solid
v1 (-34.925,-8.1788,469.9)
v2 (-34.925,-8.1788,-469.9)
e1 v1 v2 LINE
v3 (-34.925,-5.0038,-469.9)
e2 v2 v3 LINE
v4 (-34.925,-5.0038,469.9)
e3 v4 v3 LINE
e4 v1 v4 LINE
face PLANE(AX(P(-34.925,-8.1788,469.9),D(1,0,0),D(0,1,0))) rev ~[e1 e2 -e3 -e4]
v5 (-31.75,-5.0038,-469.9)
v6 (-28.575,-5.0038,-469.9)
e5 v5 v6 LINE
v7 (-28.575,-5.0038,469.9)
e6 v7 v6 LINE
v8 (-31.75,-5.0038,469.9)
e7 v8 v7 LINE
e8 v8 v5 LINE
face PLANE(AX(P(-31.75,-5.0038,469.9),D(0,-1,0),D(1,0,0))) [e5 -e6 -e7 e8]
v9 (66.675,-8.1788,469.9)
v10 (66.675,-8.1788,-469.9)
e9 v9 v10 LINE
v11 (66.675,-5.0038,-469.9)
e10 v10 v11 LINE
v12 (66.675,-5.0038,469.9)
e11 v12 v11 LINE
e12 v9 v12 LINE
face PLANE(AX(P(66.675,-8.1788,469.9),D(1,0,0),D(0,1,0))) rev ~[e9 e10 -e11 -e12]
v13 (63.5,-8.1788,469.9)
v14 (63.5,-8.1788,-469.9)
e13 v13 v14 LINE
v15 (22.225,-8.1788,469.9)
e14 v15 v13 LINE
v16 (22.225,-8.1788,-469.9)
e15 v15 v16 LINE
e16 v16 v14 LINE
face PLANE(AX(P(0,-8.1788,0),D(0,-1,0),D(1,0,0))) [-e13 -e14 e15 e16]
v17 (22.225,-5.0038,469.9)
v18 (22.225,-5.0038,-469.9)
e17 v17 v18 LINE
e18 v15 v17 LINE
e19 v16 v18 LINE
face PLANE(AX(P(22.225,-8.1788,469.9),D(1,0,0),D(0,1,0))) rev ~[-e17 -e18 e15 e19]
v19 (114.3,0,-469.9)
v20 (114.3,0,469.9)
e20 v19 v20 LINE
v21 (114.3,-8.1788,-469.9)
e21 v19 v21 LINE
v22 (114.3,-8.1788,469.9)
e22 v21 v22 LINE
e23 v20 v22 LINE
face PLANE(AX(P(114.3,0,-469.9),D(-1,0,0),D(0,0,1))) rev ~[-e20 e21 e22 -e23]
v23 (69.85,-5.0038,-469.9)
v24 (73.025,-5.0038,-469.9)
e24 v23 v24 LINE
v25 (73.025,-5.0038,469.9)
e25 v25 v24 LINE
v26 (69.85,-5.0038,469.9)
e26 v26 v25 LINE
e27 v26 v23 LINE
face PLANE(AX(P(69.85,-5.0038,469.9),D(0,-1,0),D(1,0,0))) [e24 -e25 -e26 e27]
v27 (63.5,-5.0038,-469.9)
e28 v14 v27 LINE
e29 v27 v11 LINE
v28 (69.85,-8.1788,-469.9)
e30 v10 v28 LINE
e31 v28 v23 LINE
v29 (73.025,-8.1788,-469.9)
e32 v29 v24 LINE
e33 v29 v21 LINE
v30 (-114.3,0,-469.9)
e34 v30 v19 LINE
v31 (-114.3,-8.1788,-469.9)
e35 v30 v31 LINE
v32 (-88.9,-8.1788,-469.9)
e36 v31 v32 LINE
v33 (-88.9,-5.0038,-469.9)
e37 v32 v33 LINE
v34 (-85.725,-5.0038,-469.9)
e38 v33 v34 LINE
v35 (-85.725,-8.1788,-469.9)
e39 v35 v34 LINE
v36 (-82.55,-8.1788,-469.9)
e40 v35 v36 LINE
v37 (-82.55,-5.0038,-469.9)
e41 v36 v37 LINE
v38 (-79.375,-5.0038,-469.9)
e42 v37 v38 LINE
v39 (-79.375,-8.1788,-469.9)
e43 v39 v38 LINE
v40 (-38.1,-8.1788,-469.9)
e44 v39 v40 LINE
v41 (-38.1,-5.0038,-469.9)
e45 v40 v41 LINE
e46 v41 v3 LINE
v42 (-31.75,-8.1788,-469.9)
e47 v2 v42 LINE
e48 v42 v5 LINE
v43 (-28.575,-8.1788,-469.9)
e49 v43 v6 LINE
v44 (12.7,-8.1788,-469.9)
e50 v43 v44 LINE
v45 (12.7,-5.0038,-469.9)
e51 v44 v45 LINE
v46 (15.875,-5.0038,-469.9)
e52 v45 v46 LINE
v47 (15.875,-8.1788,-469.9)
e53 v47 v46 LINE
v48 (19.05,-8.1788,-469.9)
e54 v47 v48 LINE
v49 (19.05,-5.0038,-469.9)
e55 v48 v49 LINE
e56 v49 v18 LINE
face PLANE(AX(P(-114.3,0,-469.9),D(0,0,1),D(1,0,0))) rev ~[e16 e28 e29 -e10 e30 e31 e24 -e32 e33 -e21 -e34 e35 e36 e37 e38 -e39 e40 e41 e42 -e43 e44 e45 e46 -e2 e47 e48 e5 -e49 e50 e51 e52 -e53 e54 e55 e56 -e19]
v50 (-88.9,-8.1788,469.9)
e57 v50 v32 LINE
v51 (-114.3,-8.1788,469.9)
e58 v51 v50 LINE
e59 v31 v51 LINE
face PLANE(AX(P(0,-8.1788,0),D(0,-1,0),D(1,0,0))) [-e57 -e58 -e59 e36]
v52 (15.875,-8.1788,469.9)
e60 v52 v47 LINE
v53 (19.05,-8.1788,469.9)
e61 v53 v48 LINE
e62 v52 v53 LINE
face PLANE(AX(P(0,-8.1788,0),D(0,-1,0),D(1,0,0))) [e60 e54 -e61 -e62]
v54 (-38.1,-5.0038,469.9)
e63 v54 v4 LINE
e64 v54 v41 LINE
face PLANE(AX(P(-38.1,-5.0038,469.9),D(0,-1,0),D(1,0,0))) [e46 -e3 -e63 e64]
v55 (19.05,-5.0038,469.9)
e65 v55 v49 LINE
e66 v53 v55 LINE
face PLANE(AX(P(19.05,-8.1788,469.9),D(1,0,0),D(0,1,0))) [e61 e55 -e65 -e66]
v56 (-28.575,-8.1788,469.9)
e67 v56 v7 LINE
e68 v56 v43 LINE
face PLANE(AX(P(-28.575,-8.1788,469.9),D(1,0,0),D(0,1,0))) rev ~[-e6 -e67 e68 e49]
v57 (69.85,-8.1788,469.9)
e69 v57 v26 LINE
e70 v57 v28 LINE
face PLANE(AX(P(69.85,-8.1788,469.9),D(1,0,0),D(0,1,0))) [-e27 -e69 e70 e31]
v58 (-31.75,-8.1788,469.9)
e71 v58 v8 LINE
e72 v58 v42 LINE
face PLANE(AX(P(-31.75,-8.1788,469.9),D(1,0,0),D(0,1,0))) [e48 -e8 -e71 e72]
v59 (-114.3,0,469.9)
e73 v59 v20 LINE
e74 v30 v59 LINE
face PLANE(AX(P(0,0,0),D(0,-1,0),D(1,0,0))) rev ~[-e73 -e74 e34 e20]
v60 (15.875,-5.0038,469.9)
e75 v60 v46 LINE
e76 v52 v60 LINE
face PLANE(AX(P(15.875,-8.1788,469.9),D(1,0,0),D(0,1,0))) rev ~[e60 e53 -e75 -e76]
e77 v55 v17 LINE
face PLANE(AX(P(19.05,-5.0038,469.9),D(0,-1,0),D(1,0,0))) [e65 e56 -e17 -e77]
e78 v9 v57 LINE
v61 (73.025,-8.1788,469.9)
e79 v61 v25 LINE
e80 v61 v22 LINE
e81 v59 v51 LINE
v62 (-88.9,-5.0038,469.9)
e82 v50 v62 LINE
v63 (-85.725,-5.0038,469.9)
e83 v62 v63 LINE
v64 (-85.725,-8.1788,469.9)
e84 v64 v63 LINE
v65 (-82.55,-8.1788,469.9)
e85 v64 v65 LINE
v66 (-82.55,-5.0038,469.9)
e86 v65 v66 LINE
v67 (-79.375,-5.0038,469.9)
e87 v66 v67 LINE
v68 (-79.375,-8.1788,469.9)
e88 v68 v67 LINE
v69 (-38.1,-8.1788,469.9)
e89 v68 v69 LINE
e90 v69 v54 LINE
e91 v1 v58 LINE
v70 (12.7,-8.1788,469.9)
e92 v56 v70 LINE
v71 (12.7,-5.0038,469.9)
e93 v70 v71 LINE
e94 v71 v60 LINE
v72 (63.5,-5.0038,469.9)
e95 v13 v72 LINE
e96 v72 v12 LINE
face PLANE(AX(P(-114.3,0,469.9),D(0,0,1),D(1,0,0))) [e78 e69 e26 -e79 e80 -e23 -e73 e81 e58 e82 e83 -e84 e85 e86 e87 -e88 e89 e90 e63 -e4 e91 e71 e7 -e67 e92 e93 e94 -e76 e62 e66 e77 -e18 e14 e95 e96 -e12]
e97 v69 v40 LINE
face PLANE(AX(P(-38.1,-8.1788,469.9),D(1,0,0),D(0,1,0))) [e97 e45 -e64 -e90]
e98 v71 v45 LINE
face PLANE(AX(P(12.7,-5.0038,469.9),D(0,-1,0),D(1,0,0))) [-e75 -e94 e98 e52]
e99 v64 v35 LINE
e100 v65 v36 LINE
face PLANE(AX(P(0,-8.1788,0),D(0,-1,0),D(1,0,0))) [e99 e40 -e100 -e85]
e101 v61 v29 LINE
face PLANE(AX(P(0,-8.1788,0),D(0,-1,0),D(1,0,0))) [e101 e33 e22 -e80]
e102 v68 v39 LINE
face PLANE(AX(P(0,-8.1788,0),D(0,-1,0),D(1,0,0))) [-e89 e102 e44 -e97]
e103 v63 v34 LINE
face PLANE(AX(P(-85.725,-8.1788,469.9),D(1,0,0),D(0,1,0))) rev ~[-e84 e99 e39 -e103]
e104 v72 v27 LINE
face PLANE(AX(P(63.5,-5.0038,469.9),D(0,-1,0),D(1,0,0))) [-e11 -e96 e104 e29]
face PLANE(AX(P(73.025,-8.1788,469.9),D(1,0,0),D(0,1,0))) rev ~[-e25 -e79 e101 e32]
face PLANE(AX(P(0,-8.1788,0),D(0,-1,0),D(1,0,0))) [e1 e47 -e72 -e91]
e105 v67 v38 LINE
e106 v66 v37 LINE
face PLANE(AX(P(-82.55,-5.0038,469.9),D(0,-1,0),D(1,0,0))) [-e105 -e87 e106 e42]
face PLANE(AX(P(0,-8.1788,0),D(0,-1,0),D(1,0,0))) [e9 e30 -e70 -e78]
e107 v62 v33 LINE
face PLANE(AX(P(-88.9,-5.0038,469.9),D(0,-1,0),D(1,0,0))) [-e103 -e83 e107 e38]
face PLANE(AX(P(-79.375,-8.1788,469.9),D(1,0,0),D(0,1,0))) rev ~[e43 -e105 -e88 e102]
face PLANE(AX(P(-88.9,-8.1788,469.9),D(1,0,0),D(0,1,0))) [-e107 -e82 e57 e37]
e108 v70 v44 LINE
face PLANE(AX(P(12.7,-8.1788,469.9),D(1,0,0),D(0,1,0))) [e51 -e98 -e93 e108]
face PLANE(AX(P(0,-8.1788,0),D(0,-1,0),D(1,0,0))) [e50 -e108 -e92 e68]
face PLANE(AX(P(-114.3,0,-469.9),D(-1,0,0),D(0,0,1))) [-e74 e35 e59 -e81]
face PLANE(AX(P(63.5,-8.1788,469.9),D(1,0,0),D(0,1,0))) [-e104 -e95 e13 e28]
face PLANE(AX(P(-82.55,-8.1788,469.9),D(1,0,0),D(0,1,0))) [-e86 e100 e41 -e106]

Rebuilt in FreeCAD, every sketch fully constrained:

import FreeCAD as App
import Part
import Sketcher

V = App.Vector
Q = App.Units.Quantity


def add_polygon(sketch, points):
    """Adds a closed chain of lines whose ends are joined by coincident constraints."""
    first, n = sketch.GeometryCount, len(points)
    for a, b in zip(points, points[1:] + points[:1]):
        sketch.addGeometry(Part.LineSegment(App.Vector(*a, 0), App.Vector(*b, 0)), False)
    for i in range(n):
        sketch.addConstraint(Sketcher.Constraint("Coincident", first + i, 2, first + (i + 1) % n, 1))

doc = App.newDocument("Part")
body = doc.addObject("PartDesign::Body", "Body")

sketch1 = body.newObject("Sketcher::SketchObject", "Sketch")
sketch1.AttachmentSupport = (doc.getObject("XZ_Plane"), [""])
sketch1.MapMode = "FlatFace"
add_polygon(sketch1, [(-114, 470), (-114, -470), (114, -470), (114, 470)])
sketch1.addConstraint([
    Sketcher.Constraint("Vertical", 0),
    Sketcher.Constraint("Horizontal", 1),
    Sketcher.Constraint("Vertical", 2),
    Sketcher.Constraint("Horizontal", 3),
    Sketcher.Constraint("Symmetric", 0, 2, 2, 2, -1, 1),
    Sketcher.Constraint("DistanceX", 1, 1, 1, 2, Q("9 in")),
    Sketcher.Constraint("DistanceY", 0, 2, 0, 1, Q("37 in")),
])
pad1 = body.newObject("PartDesign::Pad", "Pad")
pad1.Profile = sketch1
pad1.Length = Q("0.322 in")

sketch2 = body.newObject("Sketcher::SketchObject", "Sketch001")
sketch2.AttachmentSupport = (doc.getObject("XY_Plane"), [""])
sketch2.MapMode = "FlatFace"
sketch2.AttachmentOffset = App.Placement(V(0, 0, 18.5 * 25.4), App.Rotation())
add_polygon(sketch2, [(-88.9, -5), (-88.9, -8.2), (-85.7, -8.2), (-85.7, -5)])
add_polygon(sketch2, [(-82.5, -5), (-82.5, -8.2), (-79.4, -8.2), (-79.4, -5)])
add_polygon(sketch2, [(-38.1, -5), (-38.1, -8.2), (-34.9, -8.2), (-34.9, -5)])
add_polygon(sketch2, [(-31.8, -5), (-31.8, -8.2), (-28.6, -8.2), (-28.6, -5)])
add_polygon(sketch2, [(12.7, -5), (12.7, -8.2), (15.9, -8.2), (15.9, -5)])
add_polygon(sketch2, [(19.1, -5), (19.1, -8.2), (22.2, -8.2), (22.2, -5)])
add_polygon(sketch2, [(63.5, -5), (63.5, -8.2), (66.7, -8.2), (66.7, -5)])
add_polygon(sketch2, [(69.8, -5), (69.8, -8.2), (73, -8.2), (73, -5)])
sketch2.addConstraint([
    Sketcher.Constraint("Vertical", 0),
    Sketcher.Constraint("Horizontal", 1),
    Sketcher.Constraint("Vertical", 2),
    Sketcher.Constraint("Horizontal", 3),
    Sketcher.Constraint("Vertical", 4),
    Sketcher.Constraint("Horizontal", 5),
    Sketcher.Constraint("Vertical", 6),
    Sketcher.Constraint("Horizontal", 7),
    Sketcher.Constraint("Vertical", 8),
    Sketcher.Constraint("Horizontal", 9),
    Sketcher.Constraint("Vertical", 10),
    Sketcher.Constraint("Horizontal", 11),
    Sketcher.Constraint("Vertical", 12),
    Sketcher.Constraint("Horizontal", 13),
    Sketcher.Constraint("Vertical", 14),
    Sketcher.Constraint("Horizontal", 15),
    Sketcher.Constraint("Vertical", 16),
    Sketcher.Constraint("Horizontal", 17),
    Sketcher.Constraint("Vertical", 18),
    Sketcher.Constraint("Horizontal", 19),
    Sketcher.Constraint("Vertical", 20),
    Sketcher.Constraint("Horizontal", 21),
    Sketcher.Constraint("Vertical", 22),
    Sketcher.Constraint("Horizontal", 23),
    Sketcher.Constraint("Vertical", 24),
    Sketcher.Constraint("Horizontal", 25),
    Sketcher.Constraint("Vertical", 26),
    Sketcher.Constraint("Horizontal", 27),
    Sketcher.Constraint("Vertical", 28),
    Sketcher.Constraint("Horizontal", 29),
    Sketcher.Constraint("Vertical", 30),
    Sketcher.Constraint("Horizontal", 31),
    Sketcher.Constraint("Horizontal", 1, 2, 4, 2),
    Sketcher.Constraint("Horizontal", 3, 2, 6, 2),
    Sketcher.Constraint("Horizontal", 5, 2, 8, 2),
    Sketcher.Constraint("Horizontal", 7, 2, 10, 2),
    Sketcher.Constraint("Horizontal", 9, 2, 12, 2),
    Sketcher.Constraint("Horizontal", 11, 2, 14, 2),
    Sketcher.Constraint("Horizontal", 13, 2, 16, 2),
    Sketcher.Constraint("Horizontal", 15, 2, 18, 2),
    Sketcher.Constraint("Horizontal", 17, 2, 20, 2),
    Sketcher.Constraint("Horizontal", 19, 2, 22, 2),
    Sketcher.Constraint("Horizontal", 21, 2, 24, 2),
    Sketcher.Constraint("Horizontal", 23, 2, 26, 2),
    Sketcher.Constraint("Horizontal", 25, 2, 28, 2),
    Sketcher.Constraint("Horizontal", 27, 2, 30, 2),
    Sketcher.Constraint("Equal", 3, 5),
    Sketcher.Constraint("Equal", 7, 9),
    Sketcher.Constraint("Equal", 11, 13),
    Sketcher.Constraint("Equal", 15, 17),
    Sketcher.Constraint("Equal", 19, 21),
    Sketcher.Constraint("Equal", 23, 25),
    Sketcher.Constraint("Equal", 27, 29),
    Sketcher.Constraint("Equal", 31, 0),
    Sketcher.Constraint("DistanceX", 0, 2, -1, 1, Q("3.5 in")),
    Sketcher.Constraint("DistanceX", 8, 2, -1, 1, Q("1.5 in")),
    Sketcher.Constraint("DistanceX", -1, 1, 16, 2, Q("0.5 in")),
    Sketcher.Constraint("DistanceX", -1, 1, 24, 2, Q("2.5 in")),
    Sketcher.Constraint("DistanceX", 1, 1, 1, 2, Q("0.125 in")),
    Sketcher.Constraint("DistanceX", 4, 2, -1, 1, Q("3.25 in")),
    Sketcher.Constraint("DistanceX", 12, 2, -1, 1, Q("1.25 in")),
    Sketcher.Constraint("DistanceX", -1, 1, 20, 2, Q("0.75 in")),
    Sketcher.Constraint("DistanceX", -1, 1, 28, 2, Q("2.75 in")),
    Sketcher.Constraint("DistanceY", 0, 2, -1, 1, Q("0.322 in")),
])
pocket1 = body.newObject("PartDesign::Pocket", "Pocket")
pocket1.Profile = sketch2
pocket1.Type = "ThroughAll"

doc.recompute()
